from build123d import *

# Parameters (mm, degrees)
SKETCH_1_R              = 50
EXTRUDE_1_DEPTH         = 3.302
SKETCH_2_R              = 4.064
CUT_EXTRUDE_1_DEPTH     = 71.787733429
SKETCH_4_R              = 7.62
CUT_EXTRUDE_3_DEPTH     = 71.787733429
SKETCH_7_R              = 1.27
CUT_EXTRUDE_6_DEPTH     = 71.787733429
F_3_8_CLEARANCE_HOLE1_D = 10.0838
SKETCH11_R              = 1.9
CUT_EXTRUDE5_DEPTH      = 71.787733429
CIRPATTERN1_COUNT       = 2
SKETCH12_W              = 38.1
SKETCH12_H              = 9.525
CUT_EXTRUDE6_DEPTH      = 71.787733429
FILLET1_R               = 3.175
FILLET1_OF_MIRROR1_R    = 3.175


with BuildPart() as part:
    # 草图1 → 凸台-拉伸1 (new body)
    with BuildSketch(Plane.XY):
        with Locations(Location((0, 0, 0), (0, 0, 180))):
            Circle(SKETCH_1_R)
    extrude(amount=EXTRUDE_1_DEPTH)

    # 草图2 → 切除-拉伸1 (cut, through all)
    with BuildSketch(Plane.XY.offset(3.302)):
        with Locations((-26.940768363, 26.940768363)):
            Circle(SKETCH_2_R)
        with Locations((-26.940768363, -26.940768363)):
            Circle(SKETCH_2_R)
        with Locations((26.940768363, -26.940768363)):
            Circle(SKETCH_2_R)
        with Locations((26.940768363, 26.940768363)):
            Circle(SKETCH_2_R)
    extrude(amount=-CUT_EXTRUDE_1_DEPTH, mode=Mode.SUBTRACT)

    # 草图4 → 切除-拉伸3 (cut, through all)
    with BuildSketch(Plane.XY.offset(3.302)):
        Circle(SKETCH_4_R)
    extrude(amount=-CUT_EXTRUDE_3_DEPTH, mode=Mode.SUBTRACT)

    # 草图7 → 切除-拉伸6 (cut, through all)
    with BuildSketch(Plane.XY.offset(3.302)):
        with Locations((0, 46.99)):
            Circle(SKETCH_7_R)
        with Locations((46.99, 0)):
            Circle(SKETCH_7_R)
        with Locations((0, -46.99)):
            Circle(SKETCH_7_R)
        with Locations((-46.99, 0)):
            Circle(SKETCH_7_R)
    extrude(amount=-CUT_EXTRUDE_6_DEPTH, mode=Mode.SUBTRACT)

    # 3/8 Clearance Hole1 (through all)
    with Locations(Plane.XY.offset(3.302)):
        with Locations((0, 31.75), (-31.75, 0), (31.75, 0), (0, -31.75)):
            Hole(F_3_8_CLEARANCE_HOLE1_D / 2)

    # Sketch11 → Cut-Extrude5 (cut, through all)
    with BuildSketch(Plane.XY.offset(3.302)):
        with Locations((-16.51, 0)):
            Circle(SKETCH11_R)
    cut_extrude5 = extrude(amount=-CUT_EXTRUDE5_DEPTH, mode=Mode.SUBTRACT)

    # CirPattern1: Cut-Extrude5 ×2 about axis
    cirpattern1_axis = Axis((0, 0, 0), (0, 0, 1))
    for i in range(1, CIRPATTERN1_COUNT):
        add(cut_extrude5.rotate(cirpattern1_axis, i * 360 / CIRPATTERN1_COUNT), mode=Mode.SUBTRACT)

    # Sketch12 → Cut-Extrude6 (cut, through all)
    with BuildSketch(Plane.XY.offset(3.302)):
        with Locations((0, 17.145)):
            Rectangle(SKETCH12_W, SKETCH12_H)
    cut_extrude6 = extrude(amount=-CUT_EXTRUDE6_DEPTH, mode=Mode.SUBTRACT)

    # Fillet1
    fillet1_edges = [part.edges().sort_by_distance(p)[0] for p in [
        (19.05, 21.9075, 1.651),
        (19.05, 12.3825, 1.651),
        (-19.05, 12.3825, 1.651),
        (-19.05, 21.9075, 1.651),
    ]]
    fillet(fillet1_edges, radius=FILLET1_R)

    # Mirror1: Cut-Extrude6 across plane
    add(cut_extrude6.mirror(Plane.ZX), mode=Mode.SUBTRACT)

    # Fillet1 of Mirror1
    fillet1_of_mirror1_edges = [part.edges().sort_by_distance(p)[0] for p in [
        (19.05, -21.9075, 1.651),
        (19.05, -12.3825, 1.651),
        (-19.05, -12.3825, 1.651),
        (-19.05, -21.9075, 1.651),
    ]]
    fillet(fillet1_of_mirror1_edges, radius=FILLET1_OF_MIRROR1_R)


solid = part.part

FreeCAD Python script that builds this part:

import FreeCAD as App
import Part
import Sketcher
Q = App.Units.Quantity


def edges_at(feature, points):
    """Names of the edges that pass closest to the given points."""
    edges = feature.Shape.Edges
    near = lambda p: min(range(len(edges)), key=lambda i: edges[i].distToShape(Part.Vertex(*p))[0])
    return sorted({f"Edge{near(p) + 1}" for p in points})


def add_polygon(sketch, points):
    """Adds a closed chain of lines whose ends are joined by coincident constraints."""
    first, n = sketch.GeometryCount, len(points)
    for a, b in zip(points, points[1:] + points[:1]):
        sketch.addGeometry(Part.LineSegment(App.Vector(*a, 0), App.Vector(*b, 0)), False)
    for i in range(n):
        sketch.addConstraint(Sketcher.Constraint("Coincident", first + i, 2, first + (i + 1) % n, 1))

doc = App.newDocument("Part")
body = doc.addObject("PartDesign::Body", "Body")

# Sketch on XY plane
sketch1 = doc.addObject("Sketcher::SketchObject", "Sketch")
body.addObject(sketch1)
sketch1.AttachmentSupport = (doc.XY_Plane, [""])
sketch1.MapMode = "FlatFace"
sketch1.addGeometry(Part.Circle(App.Vector(0, 0, 0), App.Vector(0, 0, 1), 50), False)
sketch1.addConstraint(Sketcher.Constraint("Coincident", 0, 3, -1, 1))
sketch1.addConstraint(Sketcher.Constraint("Diameter", 0, 100.0))
pad1 = doc.addObject("PartDesign::Pad", "Pad")
body.addObject(pad1)
pad1.Profile = sketch1
pad1.Length = Q("0.13 in")

# Sketch on XY plane
sketch2 = doc.addObject("Sketcher::SketchObject", "Sketch001")
body.addObject(sketch2)
sketch2.AttachmentSupport = (doc.XY_Plane, [""])
sketch2.MapMode = "FlatFace"
sketch2.AttachmentOffset = App.Placement(App.Vector(0, 0, 0.13 * 25.4), App.Rotation())
sketch2.addGeometry(Part.Circle(App.Vector(-26.9, 26.9, 0), App.Vector(0, 0, 1), 4.1), False)
sketch2.addGeometry(Part.Circle(App.Vector(-26.9, -26.9, 0), App.Vector(0, 0, 1), 4.1), False)
sketch2.addGeometry(Part.Circle(App.Vector(26.9, -26.9, 0), App.Vector(0, 0, 1), 4.1), False)
sketch2.addGeometry(Part.Circle(App.Vector(26.9, 26.9, 0), App.Vector(0, 0, 1), 4.1), False)
sketch2.addConstraint(Sketcher.Constraint("Equal", 0, 1))
sketch2.addConstraint(Sketcher.Constraint("Equal", 1, 2))
sketch2.addConstraint(Sketcher.Constraint("Equal", 2, 3))
sketch2.addConstraint(Sketcher.Constraint("Symmetric", 0, 3, 2, 3, -1, 1))
sketch2.addConstraint(Sketcher.Constraint("Symmetric", 1, 3, 3, 3, -1, 1))
sketch2.addConstraint(Sketcher.Constraint("Symmetric", 1, 3, 2, 3, -2))
sketch2.addConstraint(Sketcher.Constraint("Diameter", 0, Q("0.32 in")))
sketch2.addConstraint(Sketcher.Constraint("DistanceX", 0, 3, -1, 1, 26.940768))
sketch2.addConstraint(Sketcher.Constraint("DistanceY", -1, 1, 0, 3, 26.940768))
pocket1 = doc.addObject("PartDesign::Pocket", "Pocket")
body.addObject(pocket1)
pocket1.Profile = sketch2
pocket1.Type = "ThroughAll"

# Sketch on XY plane
sketch3 = doc.addObject("Sketcher::SketchObject", "Sketch002")
body.addObject(sketch3)
sketch3.AttachmentSupport = (doc.XY_Plane, [""])
sketch3.MapMode = "FlatFace"
sketch3.AttachmentOffset = App.Placement(App.Vector(0, 0, 0.13 * 25.4), App.Rotation())
sketch3.addGeometry(Part.Circle(App.Vector(0, 0, 0), App.Vector(0, 0, 1), 8), False)
sketch3.addConstraint(Sketcher.Constraint("Coincident", 0, 3, -1, 1))
sketch3.addConstraint(Sketcher.Constraint("Diameter", 0, Q("0.6 in")))
pocket2 = doc.addObject("PartDesign::Pocket", "Pocket001")
body.addObject(pocket2)
pocket2.Profile = sketch3
pocket2.Type = "ThroughAll"

# Sketch on XY plane
sketch4 = doc.addObject("Sketcher::SketchObject", "Sketch003")
body.addObject(sketch4)
sketch4.AttachmentSupport = (doc.XY_Plane, [""])
sketch4.MapMode = "FlatFace"
sketch4.AttachmentOffset = App.Placement(App.Vector(0, 0, 0.13 * 25.4), App.Rotation())
sketch4.addGeometry(Part.Circle(App.Vector(0, 47, 0), App.Vector(0, 0, 1), 1.3), False)
sketch4.addGeometry(Part.Circle(App.Vector(47, 0, 0), App.Vector(0, 0, 1), 1.3), False)
sketch4.addGeometry(Part.Circle(App.Vector(0, -47, 0), App.Vector(0, 0, 1), 1.3), False)
sketch4.addGeometry(Part.Circle(App.Vector(-47, 0, 0), App.Vector(0, 0, 1), 1.3), False)
sketch4.addConstraint(Sketcher.Constraint("Equal", 0, 1))
sketch4.addConstraint(Sketcher.Constraint("Equal", 1, 2))
sketch4.addConstraint(Sketcher.Constraint("Equal", 2, 3))
sketch4.addConstraint(Sketcher.Constraint("Symmetric", 0, 3, 2, 3, -1, 1))
sketch4.addConstraint(Sketcher.Constraint("Symmetric", 1, 3, 3, 3, -1, 1))
sketch4.addConstraint(Sketcher.Constraint("PointOnObject", 0, 3, -2))
sketch4.addConstraint(Sketcher.Constraint("PointOnObject", 1, 3, -1))
sketch4.addConstraint(Sketcher.Constraint("Diameter", 0, Q("0.1 in")))
sketch4.addConstraint(Sketcher.Constraint("DistanceY", 2, 3, 0, 3, Q("3.7 in")))
sketch4.addConstraint(Sketcher.Constraint("DistanceX", 3, 3, 1, 3, Q("3.7 in")))
pocket3 = doc.addObject("PartDesign::Pocket", "Pocket002")
body.addObject(pocket3)
pocket3.Profile = sketch4
pocket3.Type = "ThroughAll"

# Sketch on XY plane
sketch5 = doc.addObject("Sketcher::SketchObject", "Sketch004")
body.addObject(sketch5)
sketch5.AttachmentSupport = (doc.XY_Plane, [""])
sketch5.MapMode = "FlatFace"
sketch5.AttachmentOffset = App.Placement(App.Vector(0, 0, 0.13 * 25.4), App.Rotation())
sketch5.addGeometry(Part.Circle(App.Vector(0, 32, 0), App.Vector(0, 0, 1), 5), False)
sketch5.addGeometry(Part.Circle(App.Vector(-32, 0, 0), App.Vector(0, 0, 1), 5), False)
sketch5.addGeometry(Part.Circle(App.Vector(32, 0, 0), App.Vector(0, 0, 1), 5), False)
sketch5.addGeometry(Part.Circle(App.Vector(0, -32, 0), App.Vector(0, 0, 1), 5), False)
sketch5.addConstraint(Sketcher.Constraint("Equal", 0, 1))
sketch5.addConstraint(Sketcher.Constraint("Equal", 1, 2))
sketch5.addConstraint(Sketcher.Constraint("Equal", 2, 3))
sketch5.addConstraint(Sketcher.Constraint("Symmetric", 1, 3, 2, 3, -1, 1))
sketch5.addConstraint(Sketcher.Constraint("Symmetric", 0, 3, 3, 3, -1, 1))
sketch5.addConstraint(Sketcher.Constraint("PointOnObject", 0, 3, -2))
sketch5.addConstraint(Sketcher.Constraint("PointOnObject", 1, 3, -1))
sketch5.addConstraint(Sketcher.Constraint("Diameter", 0, Q("0.397 in")))
sketch5.addConstraint(Sketcher.Constraint("DistanceX", 1, 3, 2, 3, Q("2.5 in")))
sketch5.addConstraint(Sketcher.Constraint("DistanceY", 3, 3, 0, 3, Q("2.5 in")))
doc.recompute()
hole = doc.addObject("PartDesign::Hole", "Hole")
body.addObject(hole)
hole.Profile = sketch5
hole.ThreadType = "None"
hole.Diameter = Q("0.397 in")
hole.DepthType = "ThroughAll"

# Sketch on XY plane
sketch6 = doc.addObject("Sketcher::SketchObject", "Sketch005")
body.addObject(sketch6)
sketch6.AttachmentSupport = (doc.XY_Plane, [""])
sketch6.MapMode = "FlatFace"
sketch6.AttachmentOffset = App.Placement(App.Vector(0, 0, 0.13 * 25.4), App.Rotation())
sketch6.addGeometry(Part.Circle(App.Vector(-16.5, 0, 0), App.Vector(0, 0, 1), 1.9), False)
sketch6.addConstraint(Sketcher.Constraint("PointOnObject", 0, 3, -1))
sketch6.addConstraint(Sketcher.Constraint("Diameter", 0, 3.8))
sketch6.addConstraint(Sketcher.Constraint("DistanceX", 0, 3, -1, 1, Q("0.65 in")))
pocket4 = doc.addObject("PartDesign::Pocket", "Pocket003")
body.addObject(pocket4)
pocket4.Profile = sketch6
pocket4.Type = "ThroughAll"
doc.recompute()

polarpattern = doc.addObject("PartDesign::PolarPattern", "PolarPattern")
body.addObject(polarpattern)
polarpattern.Originals = [pocket4]
polarpattern.Axis = (doc.Z_Axis, [""])
polarpattern.Angle = 360
polarpattern.Occurrences = 2
body.Tip = polarpattern

# Sketch on XY plane
sketch7 = doc.addObject("Sketcher::SketchObject", "Sketch006")
body.addObject(sketch7)
sketch7.AttachmentSupport = (doc.XY_Plane, [""])
sketch7.MapMode = "FlatFace"
sketch7.AttachmentOffset = App.Placement(App.Vector(0, 0, 0.13 * 25.4), App.Rotation())
add_polygon(sketch7, [(-19, 22), (-19, 12), (19, 12), (19, 22)])  # lines 0-3
sketch7.addConstraint(Sketcher.Constraint("Vertical", 0))
sketch7.addConstraint(Sketcher.Constraint("Horizontal", 1))
sketch7.addConstraint(Sketcher.Constraint("Vertical", 2))
sketch7.addConstraint(Sketcher.Constraint("Horizontal", 3))
sketch7.addConstraint(Sketcher.Constraint("DistanceX", 1, 1, 1, 2, Q("1.5 in")))
sketch7.addConstraint(Sketcher.Constraint("DistanceY", 0, 2, 0, 1, Q("0.375 in")))
sketch7.addConstraint(Sketcher.Constraint("DistanceX", 0, 2, -1, 1, Q("0.75 in")))
sketch7.addConstraint(Sketcher.Constraint("DistanceY", -1, 1, 0, 2, Q("0.4875 in")))
pocket5 = doc.addObject("PartDesign::Pocket", "Pocket004")
body.addObject(pocket5)
pocket5.Profile = sketch7
pocket5.Type = "ThroughAll"
doc.recompute()

fillet = doc.addObject("PartDesign::Fillet", "Fillet")
body.addObject(fillet)
fillet.Base = (pocket5, edges_at(pocket5, [
    (19.05, 21.907, 1.651),
    (19.05, 12.383, 1.651),
    (-19.05, 12.383, 1.651),
    (-19.05, 21.907, 1.651),
]))
fillet.Radius = Q("0.125 in")
doc.recompute()

mirrored = doc.addObject("PartDesign::Mirrored", "Mirrored")
body.addObject(mirrored)
mirrored.Originals = [pocket5]
mirrored.MirrorPlane = (doc.XZ_Plane, [""])
body.Tip = mirrored
doc.recompute()

fillet2 = doc.addObject("PartDesign::Fillet", "Fillet001")
body.addObject(fillet2)
fillet2.Base = (mirrored, edges_at(mirrored, [
    (19.05, -21.907, 1.651),
    (19.05, -12.383, 1.651),
    (-19.05, -12.383, 1.651),
    (-19.05, -21.907, 1.651),
]))
fillet2.Radius = Q("0.125 in")

doc.recompute()
